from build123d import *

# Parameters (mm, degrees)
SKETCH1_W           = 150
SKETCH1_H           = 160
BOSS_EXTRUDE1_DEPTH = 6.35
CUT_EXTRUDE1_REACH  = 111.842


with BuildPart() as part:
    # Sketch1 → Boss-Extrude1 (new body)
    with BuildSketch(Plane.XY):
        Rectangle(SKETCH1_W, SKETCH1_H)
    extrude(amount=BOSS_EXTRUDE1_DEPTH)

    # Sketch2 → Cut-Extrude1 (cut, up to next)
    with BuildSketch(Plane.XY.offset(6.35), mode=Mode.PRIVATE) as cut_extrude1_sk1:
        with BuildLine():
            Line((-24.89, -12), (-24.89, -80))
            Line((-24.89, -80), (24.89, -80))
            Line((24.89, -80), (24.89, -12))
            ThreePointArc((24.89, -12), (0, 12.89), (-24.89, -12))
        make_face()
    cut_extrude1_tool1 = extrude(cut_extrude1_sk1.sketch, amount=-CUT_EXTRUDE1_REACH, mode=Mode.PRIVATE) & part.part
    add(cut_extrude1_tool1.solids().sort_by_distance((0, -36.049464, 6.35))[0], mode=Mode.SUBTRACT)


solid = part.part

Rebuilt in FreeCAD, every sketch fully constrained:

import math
import FreeCAD as App
import Part
import Sketcher
from FreeCAD import Vector
Q = App.Units.Quantity


def add_polygon(sketch, points):
    """Adds a closed chain of lines whose ends are joined by coincident constraints."""
    first, n = sketch.GeometryCount, len(points)
    for a, b in zip(points, points[1:] + points[:1]):
        sketch.addGeometry(Part.LineSegment(App.Vector(*a, 0), App.Vector(*b, 0)), False)
    for i in range(n):
        sketch.addConstraint(Sketcher.Constraint("Coincident", first + i, 2, first + (i + 1) % n, 1))

doc = App.newDocument("Part")
params = doc.addObject("Spreadsheet::Sheet", "Params")
for row, (alias, value) in enumerate([
    ("sketch1_width", "150 mm"),
    ("sketch1_height", "160 mm"),
    ("pad1_length", "6.35 mm"),
    ("sketch2_height", "68 mm"),
    ("sketch2_radius", "24.89 mm"),
], start=1):
    params.set(f"A{row}", alias)
    params.set(f"B{row}", "=" + value)
    params.setAlias(f"B{row}", alias)

body = doc.addObject("PartDesign::Body", "Body")

# Sketch on XY plane
sketch1 = body.newObject("Sketcher::SketchObject", "Sketch")
sketch1.AttachmentSupport = (doc.getObject("XY_Plane"), [""])
sketch1.MapMode = "FlatFace"
add_polygon(sketch1, [(-75, 80), (-75, -80), (75, -80), (75, 80)])  # lines 0-3
sketch1.addConstraint(Sketcher.Constraint("Vertical", 0))
sketch1.addConstraint(Sketcher.Constraint("Horizontal", 1))
sketch1.addConstraint(Sketcher.Constraint("Vertical", 2))
sketch1.addConstraint(Sketcher.Constraint("Horizontal", 3))
sketch1.addConstraint(Sketcher.Constraint("Symmetric", 0, 2, 2, 2, -1, 1))
sketch1.addConstraint(Sketcher.Constraint("DistanceX", 1, 1, 1, 2, Q("150 mm")))
sketch1.addConstraint(Sketcher.Constraint("DistanceY", 0, 2, 0, 1, Q("160 mm")))
sketch1.setExpression("Constraints[9]", "Params.sketch1_width")
sketch1.setExpression("Constraints[10]", "Params.sketch1_height")
pad1 = body.newObject("PartDesign::Pad", "Pad")
pad1.Profile = sketch1
pad1.setExpression("Length", "Params.pad1_length")

# Sketch on XY plane
sketch2 = body.newObject("Sketcher::SketchObject", "Sketch001")
sketch2.AttachmentSupport = (doc.getObject("XY_Plane"), [""])
sketch2.MapMode = "FlatFace"
sketch2.AttachmentOffset = App.Placement(Vector(0, 0, 6.35), App.Rotation())
sketch2.addGeometry(Part.LineSegment(Vector(-25, -12, 0), Vector(-25, -80, 0)), False)
sketch2.addGeometry(Part.LineSegment(Vector(-25, -80, 0), Vector(25, -80, 0)), False)
sketch2.addGeometry(Part.LineSegment(Vector(25, -80, 0), Vector(25, -12, 0)), False)
sketch2.addGeometry(Part.ArcOfCircle(Part.Circle(Vector(0, -12, 0), Vector(0, 0, 1), 25), math.radians(0), math.radians(180)), False)
sketch2.addConstraint(Sketcher.Constraint("Coincident", 0, 2, 1, 1))
sketch2.addConstraint(Sketcher.Constraint("Coincident", 1, 2, 2, 1))
sketch2.addConstraint(Sketcher.Constraint("Tangent", 2, 2, 3, 1))
sketch2.addConstraint(Sketcher.Constraint("Tangent", 3, 2, 0, 1))
sketch2.addConstraint(Sketcher.Constraint("Vertical", 0))
sketch2.addConstraint(Sketcher.Constraint("Horizontal", 1))
sketch2.addConstraint(Sketcher.Constraint("Vertical", 2))
sketch2.addConstraint(Sketcher.Constraint("PointOnObject", 3, 3, -2))
sketch2.addConstraint(Sketcher.Constraint("DistanceY", 0, 2, 0, 1, Q("68 mm")))
sketch2.addConstraint(Sketcher.Constraint("Radius", 3, Q("24.89 mm")))
sketch2.addConstraint(Sketcher.Constraint("DistanceY", 3, 3, -1, 1, Q("12 mm")))
sketch2.setExpression("Constraints[8]", "Params.sketch2_height")
sketch2.setExpression("Constraints[9]", "Params.sketch2_radius")
pocket1 = body.newObject("PartDesign::Pocket", "Pocket")
pocket1.Profile = sketch2
pocket1.Type = "UpToFirst"

doc.recompute()
